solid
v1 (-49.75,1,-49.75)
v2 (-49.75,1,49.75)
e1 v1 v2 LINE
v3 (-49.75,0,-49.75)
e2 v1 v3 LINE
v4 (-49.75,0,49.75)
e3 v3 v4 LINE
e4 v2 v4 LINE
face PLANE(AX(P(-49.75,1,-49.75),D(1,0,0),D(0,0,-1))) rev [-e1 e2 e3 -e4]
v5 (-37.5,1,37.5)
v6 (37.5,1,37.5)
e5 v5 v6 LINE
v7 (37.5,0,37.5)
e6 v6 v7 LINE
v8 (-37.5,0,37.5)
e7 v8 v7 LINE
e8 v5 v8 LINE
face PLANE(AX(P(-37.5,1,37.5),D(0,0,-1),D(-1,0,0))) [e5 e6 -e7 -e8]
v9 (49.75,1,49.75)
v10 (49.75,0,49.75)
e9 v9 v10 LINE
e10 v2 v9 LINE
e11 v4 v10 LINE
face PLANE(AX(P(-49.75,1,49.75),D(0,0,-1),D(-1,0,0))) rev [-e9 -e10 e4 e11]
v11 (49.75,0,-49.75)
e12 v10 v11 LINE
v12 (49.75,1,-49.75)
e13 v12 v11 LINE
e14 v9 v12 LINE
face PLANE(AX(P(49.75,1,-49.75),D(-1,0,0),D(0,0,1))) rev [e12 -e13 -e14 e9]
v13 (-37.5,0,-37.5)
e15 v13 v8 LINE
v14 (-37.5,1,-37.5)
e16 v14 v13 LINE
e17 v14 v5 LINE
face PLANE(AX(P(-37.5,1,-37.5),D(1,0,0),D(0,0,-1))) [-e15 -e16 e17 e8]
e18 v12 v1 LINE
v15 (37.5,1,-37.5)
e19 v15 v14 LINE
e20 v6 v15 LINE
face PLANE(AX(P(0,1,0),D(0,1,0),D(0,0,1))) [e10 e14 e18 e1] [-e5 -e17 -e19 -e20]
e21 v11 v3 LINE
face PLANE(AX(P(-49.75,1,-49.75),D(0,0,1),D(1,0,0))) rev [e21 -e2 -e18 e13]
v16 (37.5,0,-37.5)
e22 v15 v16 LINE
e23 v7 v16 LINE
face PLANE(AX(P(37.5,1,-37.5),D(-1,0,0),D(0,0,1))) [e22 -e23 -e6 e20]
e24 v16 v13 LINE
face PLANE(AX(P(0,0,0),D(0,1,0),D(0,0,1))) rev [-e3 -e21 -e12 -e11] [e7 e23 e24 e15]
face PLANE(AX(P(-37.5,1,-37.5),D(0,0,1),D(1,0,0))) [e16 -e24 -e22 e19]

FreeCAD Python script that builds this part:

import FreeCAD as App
import Part
import Sketcher

doc = App.newDocument("Part")
params = doc.addObject("Spreadsheet::Sheet", "Params")
for row, (alias, value) in enumerate([
    ("sketch1_width", "75 mm"),
    ("sketch1_width2", "99.5 mm"),
    ("pad1_length", "1 mm"),
], start=1):
    params.set(f"A{row}", alias)
    params.set(f"B{row}", "=" + value)
    params.setAlias(f"B{row}", alias)

body = doc.addObject("PartDesign::Body", "Body")

sketch1 = doc.addObject("Sketcher::SketchObject", "Sketch")
body.addObject(sketch1)
sketch1.AttachmentSupport = (doc.XZ_Plane, [""])
sketch1.MapMode = "FlatFace"
sketch1.addGeometry([
    Part.LineSegment(App.Vector(-50, -50, 0), App.Vector(-50, 50, 0)),
    Part.LineSegment(App.Vector(-50, 50, 0), App.Vector(50, 50, 0)),
    Part.LineSegment(App.Vector(50, 50, 0), App.Vector(50, -50, 0)),
    Part.LineSegment(App.Vector(50, -50, 0), App.Vector(-50, -50, 0)),
    Part.LineSegment(App.Vector(38, 38, 0), App.Vector(-38, 38, 0)),
    Part.LineSegment(App.Vector(-38, 38, 0), App.Vector(-38, -38, 0)),
    Part.LineSegment(App.Vector(-38, -38, 0), App.Vector(38, -38, 0)),
    Part.LineSegment(App.Vector(38, -38, 0), App.Vector(38, 38, 0)),
], False)
sketch1.addConstraint([
    Sketcher.Constraint("Coincident", 0, 2, 1, 1),
    Sketcher.Constraint("Coincident", 1, 2, 2, 1),
    Sketcher.Constraint("Coincident", 2, 2, 3, 1),
    Sketcher.Constraint("Coincident", 3, 2, 0, 1),
    Sketcher.Constraint("Coincident", 4, 2, 5, 1),
    Sketcher.Constraint("Coincident", 5, 2, 6, 1),
    Sketcher.Constraint("Coincident", 6, 2, 7, 1),
    Sketcher.Constraint("Coincident", 7, 2, 4, 1),
    Sketcher.Constraint("Vertical", 0),
    Sketcher.Constraint("Horizontal", 1),
    Sketcher.Constraint("Vertical", 2),
    Sketcher.Constraint("Horizontal", 3),
    Sketcher.Constraint("Horizontal", 4),
    Sketcher.Constraint("Vertical", 5),
    Sketcher.Constraint("Horizontal", 6),
    Sketcher.Constraint("Vertical", 7),
    Sketcher.Constraint("Symmetric", 0, 2, 2, 2, -1, 1),
    Sketcher.Constraint("Symmetric", 4, 2, 6, 2, -1, 1),
    Sketcher.Constraint("Equal", 3, 0),
    Sketcher.Constraint("Equal", 6, 5),
    Sketcher.Constraint("DistanceX", 4, 2, 4, 1, 75.0),
    Sketcher.Constraint("DistanceX", 1, 1, 1, 2, 99.5),
])
sketch1.setExpression("Constraints[20]", "Params.sketch1_width")
sketch1.setExpression("Constraints[21]", "Params.sketch1_width2")
pad1 = doc.addObject("PartDesign::Pad", "Pad")
body.addObject(pad1)
pad1.Profile = sketch1
pad1.setExpression("Length", "Params.pad1_length")
pad1.Reversed = True

doc.recompute()
